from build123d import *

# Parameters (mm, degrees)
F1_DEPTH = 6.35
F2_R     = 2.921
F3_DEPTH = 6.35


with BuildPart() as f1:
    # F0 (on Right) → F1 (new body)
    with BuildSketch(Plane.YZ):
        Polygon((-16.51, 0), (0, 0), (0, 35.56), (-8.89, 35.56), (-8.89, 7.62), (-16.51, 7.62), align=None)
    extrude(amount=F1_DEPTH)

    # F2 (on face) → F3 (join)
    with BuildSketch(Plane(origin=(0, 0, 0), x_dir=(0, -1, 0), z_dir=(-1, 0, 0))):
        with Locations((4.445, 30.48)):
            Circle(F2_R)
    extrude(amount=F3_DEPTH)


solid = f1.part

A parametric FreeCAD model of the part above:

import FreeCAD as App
import Part
import Sketcher

V = App.Vector
Q = App.Units.Quantity

doc = App.newDocument("Part")
body = doc.addObject("PartDesign::Body", "Body")

# Sketch on YZ plane
sketch1 = doc.addObject("Sketcher::SketchObject", "Sketch")
body.addObject(sketch1)
sketch1.AttachmentSupport = (doc.YZ_Plane, [""])
sketch1.MapMode = "FlatFace"
sketch1.addGeometry([
    Part.LineSegment(V(-17, 0, 0), V(0, 0, 0)),  # 0
    Part.LineSegment(V(0, 0, 0), V(0, 36, 0)),  # 1
    Part.LineSegment(V(0, 36, 0), V(-9, 36, 0)),  # 2
    Part.LineSegment(V(-9, 36, 0), V(-9, 8, 0)),  # 3
    Part.LineSegment(V(-9, 8, 0), V(-17, 8, 0)),  # 4
    Part.LineSegment(V(-17, 8, 0), V(-17, 0, 0)),  # 5
], False)
sketch1.addConstraint([
    Sketcher.Constraint("Coincident", 0, 2, 1, 1),
    Sketcher.Constraint("Coincident", 1, 2, 2, 1),
    Sketcher.Constraint("Coincident", 2, 2, 3, 1),
    Sketcher.Constraint("Coincident", 3, 2, 4, 1),
    Sketcher.Constraint("Coincident", 4, 2, 5, 1),
    Sketcher.Constraint("Coincident", 5, 2, 0, 1),
    Sketcher.Constraint("Horizontal", 0),
    Sketcher.Constraint("Vertical", 1),
    Sketcher.Constraint("Horizontal", 2),
    Sketcher.Constraint("Vertical", 3),
    Sketcher.Constraint("Horizontal", 4),
    Sketcher.Constraint("Vertical", 5),
    Sketcher.Constraint("Coincident", 0, 2, -1, 1),
    Sketcher.Constraint("Equal", 4, 5),
    Sketcher.Constraint("DistanceX", 4, 2, 4, 1, Q("0.3 in")),
    Sketcher.Constraint("DistanceY", 1, 1, 1, 2, Q("1.4 in")),
    Sketcher.Constraint("DistanceX", 0, 1, 0, 2, Q("0.65 in")),
])
pad1 = doc.addObject("PartDesign::Pad", "Pad")
body.addObject(pad1)
pad1.Profile = sketch1
pad1.Length = Q("0.25 in")

# Sketch on YZ plane
sketch2 = doc.addObject("Sketcher::SketchObject", "Sketch001")
body.addObject(sketch2)
sketch2.AttachmentSupport = (doc.YZ_Plane, [""])
sketch2.MapMode = "FlatFace"
sketch2.addGeometry(Part.Circle(V(-4.4, 30.5, 0), V(0, 0, 1), 2.9), False)
sketch2.addConstraint([
    Sketcher.Constraint("Diameter", 0, Q("0.23 in")),
    Sketcher.Constraint("DistanceY", -1, 1, 0, 3, Q("1.2 in")),
    Sketcher.Constraint("DistanceX", 0, 3, -1, 1, Q("0.175 in")),
])
pad2 = doc.addObject("PartDesign::Pad", "Pad001")
body.addObject(pad2)
pad2.Profile = sketch2
pad2.Length = Q("0.25 in")
pad2.Reversed = True

doc.recompute()
